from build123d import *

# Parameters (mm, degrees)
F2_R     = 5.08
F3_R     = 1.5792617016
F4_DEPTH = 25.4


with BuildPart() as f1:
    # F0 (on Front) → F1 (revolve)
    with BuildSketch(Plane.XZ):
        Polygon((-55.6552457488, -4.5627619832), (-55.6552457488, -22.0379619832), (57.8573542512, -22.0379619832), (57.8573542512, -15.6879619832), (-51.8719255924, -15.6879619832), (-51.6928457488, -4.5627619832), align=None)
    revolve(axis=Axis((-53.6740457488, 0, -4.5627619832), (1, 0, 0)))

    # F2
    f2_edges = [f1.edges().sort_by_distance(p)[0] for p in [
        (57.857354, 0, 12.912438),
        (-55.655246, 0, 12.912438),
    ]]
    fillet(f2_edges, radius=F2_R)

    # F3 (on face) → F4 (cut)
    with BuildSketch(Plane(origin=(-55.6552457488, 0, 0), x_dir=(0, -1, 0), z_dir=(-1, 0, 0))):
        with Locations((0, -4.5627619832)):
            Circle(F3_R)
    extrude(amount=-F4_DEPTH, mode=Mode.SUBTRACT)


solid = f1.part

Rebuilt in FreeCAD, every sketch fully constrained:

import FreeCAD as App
import Part
import Sketcher
Q = App.Units.Quantity


def edges_at(feature, points):
    """Names of the edges that pass closest to the given points."""
    edges = feature.Shape.Edges
    near = lambda p: min(range(len(edges)), key=lambda i: edges[i].distToShape(Part.Vertex(*p))[0])
    return sorted({f"Edge{near(p) + 1}" for p in points})


def add_polygon(sketch, points):
    """Adds a closed chain of lines whose ends are joined by coincident constraints."""
    first, n = sketch.GeometryCount, len(points)
    for a, b in zip(points, points[1:] + points[:1]):
        sketch.addGeometry(Part.LineSegment(App.Vector(*a, 0), App.Vector(*b, 0)), False)
    for i in range(n):
        sketch.addConstraint(Sketcher.Constraint("Coincident", first + i, 2, first + (i + 1) % n, 1))

doc = App.newDocument("Part")
params = doc.addObject("Spreadsheet::Sheet", "Params")
for row, (alias, value) in enumerate([
    ("sketch1_height", "0.25 in"),
    ("sketch1_width", "4.469 in"),
    ("sketch1_width2", "0.156 in"),
    ("sketch1_height2", "0.688 in"),
    ("revolution_angle", "360 deg"),
    ("fillet_radius", "0.2 in"),
    ("pocket1_length", "1 in"),
], start=1):
    params.set(f"A{row}", alias)
    params.set(f"B{row}", "=" + value)
    params.setAlias(f"B{row}", alias)

body = doc.addObject("PartDesign::Body", "Body")

sketch1 = body.newObject("Sketcher::SketchObject", "Sketch")
sketch1.AttachmentSupport = (doc.getObject("XZ_Plane"), [""])
sketch1.MapMode = "FlatFace"
add_polygon(sketch1, [(-55.7, -4.6), (-55.7, -22), (57.9, -22), (57.9, -15.7), (-51.9, -15.7), (-51.7, -4.6)])
sketch1.addGeometry(Part.LineSegment(App.Vector(-55.7, -4.6, 0), App.Vector(57.9, -4.6, 0)), True)
sketch1.addConstraint([
    Sketcher.Constraint("Vertical", 0),
    Sketcher.Constraint("Horizontal", 1),
    Sketcher.Constraint("Vertical", 2),
    Sketcher.Constraint("Horizontal", 3),
    Sketcher.Constraint("Horizontal", 5),
    Sketcher.Constraint("Horizontal", 6),
    Sketcher.Constraint("Coincident", 6, 1, 5, 2),
    Sketcher.Constraint("Vertical", 2, 2, 6, 2),
    Sketcher.Constraint("DistanceY", 2, 1, 2, 2, Q("0.25 in")),
    Sketcher.Constraint("DistanceX", 1, 1, 1, 2, Q("4.469 in")),
    Sketcher.Constraint("DistanceX", 5, 2, 5, 1, Q("0.156 in")),
    Sketcher.Constraint("DistanceY", 0, 2, 0, 1, Q("0.688 in")),
    Sketcher.Constraint("DistanceX", 3, 2, 3, 1, 109.72928),
    Sketcher.Constraint("DistanceY", 0, 2, -1, 1, 22.037962),
    Sketcher.Constraint("DistanceX", 0, 2, -1, 1, 55.655246),
])
sketch1.setExpression("Constraints[14]", "Params.sketch1_height")
sketch1.setExpression("Constraints[15]", "Params.sketch1_width")
sketch1.setExpression("Constraints[16]", "Params.sketch1_width2")
sketch1.setExpression("Constraints[17]", "Params.sketch1_height2")
revolution = body.newObject("PartDesign::Revolution", "Revolution")
revolution.Profile = sketch1
revolution.ReferenceAxis = (sketch1, ["Axis0"])
revolution.setExpression("Angle", "Params.revolution_angle")
doc.recompute()

fillet = body.newObject("PartDesign::Fillet", "Fillet")
fillet.Base = (revolution, edges_at(revolution, [(57.857, 0, 12.912), (-55.655, 0, 12.912)]))
fillet.setExpression("Radius", "Params.fillet_radius")

sketch2 = body.newObject("Sketcher::SketchObject", "Sketch001")
sketch2.AttachmentSupport = (doc.getObject("YZ_Plane"), [""])
sketch2.MapMode = "FlatFace"
sketch2.AttachmentOffset = App.Placement(App.Vector(0, 0, -55.655246), App.Rotation())
sketch2.addGeometry(Part.Circle(App.Vector(0, -4.6, 0), App.Vector(0, 0, 1), 1.6), False)
sketch2.addConstraint([
    Sketcher.Constraint("PointOnObject", 0, 3, -2),
    Sketcher.Constraint("Diameter", 0, 3.158523),
    Sketcher.Constraint("DistanceY", 0, 3, -1, 1, 4.562762),
])
pocket1 = body.newObject("PartDesign::Pocket", "Pocket")
pocket1.Profile = sketch2
pocket1.setExpression("Length", "Params.pocket1_length")
pocket1.Reversed = True

doc.recompute()
